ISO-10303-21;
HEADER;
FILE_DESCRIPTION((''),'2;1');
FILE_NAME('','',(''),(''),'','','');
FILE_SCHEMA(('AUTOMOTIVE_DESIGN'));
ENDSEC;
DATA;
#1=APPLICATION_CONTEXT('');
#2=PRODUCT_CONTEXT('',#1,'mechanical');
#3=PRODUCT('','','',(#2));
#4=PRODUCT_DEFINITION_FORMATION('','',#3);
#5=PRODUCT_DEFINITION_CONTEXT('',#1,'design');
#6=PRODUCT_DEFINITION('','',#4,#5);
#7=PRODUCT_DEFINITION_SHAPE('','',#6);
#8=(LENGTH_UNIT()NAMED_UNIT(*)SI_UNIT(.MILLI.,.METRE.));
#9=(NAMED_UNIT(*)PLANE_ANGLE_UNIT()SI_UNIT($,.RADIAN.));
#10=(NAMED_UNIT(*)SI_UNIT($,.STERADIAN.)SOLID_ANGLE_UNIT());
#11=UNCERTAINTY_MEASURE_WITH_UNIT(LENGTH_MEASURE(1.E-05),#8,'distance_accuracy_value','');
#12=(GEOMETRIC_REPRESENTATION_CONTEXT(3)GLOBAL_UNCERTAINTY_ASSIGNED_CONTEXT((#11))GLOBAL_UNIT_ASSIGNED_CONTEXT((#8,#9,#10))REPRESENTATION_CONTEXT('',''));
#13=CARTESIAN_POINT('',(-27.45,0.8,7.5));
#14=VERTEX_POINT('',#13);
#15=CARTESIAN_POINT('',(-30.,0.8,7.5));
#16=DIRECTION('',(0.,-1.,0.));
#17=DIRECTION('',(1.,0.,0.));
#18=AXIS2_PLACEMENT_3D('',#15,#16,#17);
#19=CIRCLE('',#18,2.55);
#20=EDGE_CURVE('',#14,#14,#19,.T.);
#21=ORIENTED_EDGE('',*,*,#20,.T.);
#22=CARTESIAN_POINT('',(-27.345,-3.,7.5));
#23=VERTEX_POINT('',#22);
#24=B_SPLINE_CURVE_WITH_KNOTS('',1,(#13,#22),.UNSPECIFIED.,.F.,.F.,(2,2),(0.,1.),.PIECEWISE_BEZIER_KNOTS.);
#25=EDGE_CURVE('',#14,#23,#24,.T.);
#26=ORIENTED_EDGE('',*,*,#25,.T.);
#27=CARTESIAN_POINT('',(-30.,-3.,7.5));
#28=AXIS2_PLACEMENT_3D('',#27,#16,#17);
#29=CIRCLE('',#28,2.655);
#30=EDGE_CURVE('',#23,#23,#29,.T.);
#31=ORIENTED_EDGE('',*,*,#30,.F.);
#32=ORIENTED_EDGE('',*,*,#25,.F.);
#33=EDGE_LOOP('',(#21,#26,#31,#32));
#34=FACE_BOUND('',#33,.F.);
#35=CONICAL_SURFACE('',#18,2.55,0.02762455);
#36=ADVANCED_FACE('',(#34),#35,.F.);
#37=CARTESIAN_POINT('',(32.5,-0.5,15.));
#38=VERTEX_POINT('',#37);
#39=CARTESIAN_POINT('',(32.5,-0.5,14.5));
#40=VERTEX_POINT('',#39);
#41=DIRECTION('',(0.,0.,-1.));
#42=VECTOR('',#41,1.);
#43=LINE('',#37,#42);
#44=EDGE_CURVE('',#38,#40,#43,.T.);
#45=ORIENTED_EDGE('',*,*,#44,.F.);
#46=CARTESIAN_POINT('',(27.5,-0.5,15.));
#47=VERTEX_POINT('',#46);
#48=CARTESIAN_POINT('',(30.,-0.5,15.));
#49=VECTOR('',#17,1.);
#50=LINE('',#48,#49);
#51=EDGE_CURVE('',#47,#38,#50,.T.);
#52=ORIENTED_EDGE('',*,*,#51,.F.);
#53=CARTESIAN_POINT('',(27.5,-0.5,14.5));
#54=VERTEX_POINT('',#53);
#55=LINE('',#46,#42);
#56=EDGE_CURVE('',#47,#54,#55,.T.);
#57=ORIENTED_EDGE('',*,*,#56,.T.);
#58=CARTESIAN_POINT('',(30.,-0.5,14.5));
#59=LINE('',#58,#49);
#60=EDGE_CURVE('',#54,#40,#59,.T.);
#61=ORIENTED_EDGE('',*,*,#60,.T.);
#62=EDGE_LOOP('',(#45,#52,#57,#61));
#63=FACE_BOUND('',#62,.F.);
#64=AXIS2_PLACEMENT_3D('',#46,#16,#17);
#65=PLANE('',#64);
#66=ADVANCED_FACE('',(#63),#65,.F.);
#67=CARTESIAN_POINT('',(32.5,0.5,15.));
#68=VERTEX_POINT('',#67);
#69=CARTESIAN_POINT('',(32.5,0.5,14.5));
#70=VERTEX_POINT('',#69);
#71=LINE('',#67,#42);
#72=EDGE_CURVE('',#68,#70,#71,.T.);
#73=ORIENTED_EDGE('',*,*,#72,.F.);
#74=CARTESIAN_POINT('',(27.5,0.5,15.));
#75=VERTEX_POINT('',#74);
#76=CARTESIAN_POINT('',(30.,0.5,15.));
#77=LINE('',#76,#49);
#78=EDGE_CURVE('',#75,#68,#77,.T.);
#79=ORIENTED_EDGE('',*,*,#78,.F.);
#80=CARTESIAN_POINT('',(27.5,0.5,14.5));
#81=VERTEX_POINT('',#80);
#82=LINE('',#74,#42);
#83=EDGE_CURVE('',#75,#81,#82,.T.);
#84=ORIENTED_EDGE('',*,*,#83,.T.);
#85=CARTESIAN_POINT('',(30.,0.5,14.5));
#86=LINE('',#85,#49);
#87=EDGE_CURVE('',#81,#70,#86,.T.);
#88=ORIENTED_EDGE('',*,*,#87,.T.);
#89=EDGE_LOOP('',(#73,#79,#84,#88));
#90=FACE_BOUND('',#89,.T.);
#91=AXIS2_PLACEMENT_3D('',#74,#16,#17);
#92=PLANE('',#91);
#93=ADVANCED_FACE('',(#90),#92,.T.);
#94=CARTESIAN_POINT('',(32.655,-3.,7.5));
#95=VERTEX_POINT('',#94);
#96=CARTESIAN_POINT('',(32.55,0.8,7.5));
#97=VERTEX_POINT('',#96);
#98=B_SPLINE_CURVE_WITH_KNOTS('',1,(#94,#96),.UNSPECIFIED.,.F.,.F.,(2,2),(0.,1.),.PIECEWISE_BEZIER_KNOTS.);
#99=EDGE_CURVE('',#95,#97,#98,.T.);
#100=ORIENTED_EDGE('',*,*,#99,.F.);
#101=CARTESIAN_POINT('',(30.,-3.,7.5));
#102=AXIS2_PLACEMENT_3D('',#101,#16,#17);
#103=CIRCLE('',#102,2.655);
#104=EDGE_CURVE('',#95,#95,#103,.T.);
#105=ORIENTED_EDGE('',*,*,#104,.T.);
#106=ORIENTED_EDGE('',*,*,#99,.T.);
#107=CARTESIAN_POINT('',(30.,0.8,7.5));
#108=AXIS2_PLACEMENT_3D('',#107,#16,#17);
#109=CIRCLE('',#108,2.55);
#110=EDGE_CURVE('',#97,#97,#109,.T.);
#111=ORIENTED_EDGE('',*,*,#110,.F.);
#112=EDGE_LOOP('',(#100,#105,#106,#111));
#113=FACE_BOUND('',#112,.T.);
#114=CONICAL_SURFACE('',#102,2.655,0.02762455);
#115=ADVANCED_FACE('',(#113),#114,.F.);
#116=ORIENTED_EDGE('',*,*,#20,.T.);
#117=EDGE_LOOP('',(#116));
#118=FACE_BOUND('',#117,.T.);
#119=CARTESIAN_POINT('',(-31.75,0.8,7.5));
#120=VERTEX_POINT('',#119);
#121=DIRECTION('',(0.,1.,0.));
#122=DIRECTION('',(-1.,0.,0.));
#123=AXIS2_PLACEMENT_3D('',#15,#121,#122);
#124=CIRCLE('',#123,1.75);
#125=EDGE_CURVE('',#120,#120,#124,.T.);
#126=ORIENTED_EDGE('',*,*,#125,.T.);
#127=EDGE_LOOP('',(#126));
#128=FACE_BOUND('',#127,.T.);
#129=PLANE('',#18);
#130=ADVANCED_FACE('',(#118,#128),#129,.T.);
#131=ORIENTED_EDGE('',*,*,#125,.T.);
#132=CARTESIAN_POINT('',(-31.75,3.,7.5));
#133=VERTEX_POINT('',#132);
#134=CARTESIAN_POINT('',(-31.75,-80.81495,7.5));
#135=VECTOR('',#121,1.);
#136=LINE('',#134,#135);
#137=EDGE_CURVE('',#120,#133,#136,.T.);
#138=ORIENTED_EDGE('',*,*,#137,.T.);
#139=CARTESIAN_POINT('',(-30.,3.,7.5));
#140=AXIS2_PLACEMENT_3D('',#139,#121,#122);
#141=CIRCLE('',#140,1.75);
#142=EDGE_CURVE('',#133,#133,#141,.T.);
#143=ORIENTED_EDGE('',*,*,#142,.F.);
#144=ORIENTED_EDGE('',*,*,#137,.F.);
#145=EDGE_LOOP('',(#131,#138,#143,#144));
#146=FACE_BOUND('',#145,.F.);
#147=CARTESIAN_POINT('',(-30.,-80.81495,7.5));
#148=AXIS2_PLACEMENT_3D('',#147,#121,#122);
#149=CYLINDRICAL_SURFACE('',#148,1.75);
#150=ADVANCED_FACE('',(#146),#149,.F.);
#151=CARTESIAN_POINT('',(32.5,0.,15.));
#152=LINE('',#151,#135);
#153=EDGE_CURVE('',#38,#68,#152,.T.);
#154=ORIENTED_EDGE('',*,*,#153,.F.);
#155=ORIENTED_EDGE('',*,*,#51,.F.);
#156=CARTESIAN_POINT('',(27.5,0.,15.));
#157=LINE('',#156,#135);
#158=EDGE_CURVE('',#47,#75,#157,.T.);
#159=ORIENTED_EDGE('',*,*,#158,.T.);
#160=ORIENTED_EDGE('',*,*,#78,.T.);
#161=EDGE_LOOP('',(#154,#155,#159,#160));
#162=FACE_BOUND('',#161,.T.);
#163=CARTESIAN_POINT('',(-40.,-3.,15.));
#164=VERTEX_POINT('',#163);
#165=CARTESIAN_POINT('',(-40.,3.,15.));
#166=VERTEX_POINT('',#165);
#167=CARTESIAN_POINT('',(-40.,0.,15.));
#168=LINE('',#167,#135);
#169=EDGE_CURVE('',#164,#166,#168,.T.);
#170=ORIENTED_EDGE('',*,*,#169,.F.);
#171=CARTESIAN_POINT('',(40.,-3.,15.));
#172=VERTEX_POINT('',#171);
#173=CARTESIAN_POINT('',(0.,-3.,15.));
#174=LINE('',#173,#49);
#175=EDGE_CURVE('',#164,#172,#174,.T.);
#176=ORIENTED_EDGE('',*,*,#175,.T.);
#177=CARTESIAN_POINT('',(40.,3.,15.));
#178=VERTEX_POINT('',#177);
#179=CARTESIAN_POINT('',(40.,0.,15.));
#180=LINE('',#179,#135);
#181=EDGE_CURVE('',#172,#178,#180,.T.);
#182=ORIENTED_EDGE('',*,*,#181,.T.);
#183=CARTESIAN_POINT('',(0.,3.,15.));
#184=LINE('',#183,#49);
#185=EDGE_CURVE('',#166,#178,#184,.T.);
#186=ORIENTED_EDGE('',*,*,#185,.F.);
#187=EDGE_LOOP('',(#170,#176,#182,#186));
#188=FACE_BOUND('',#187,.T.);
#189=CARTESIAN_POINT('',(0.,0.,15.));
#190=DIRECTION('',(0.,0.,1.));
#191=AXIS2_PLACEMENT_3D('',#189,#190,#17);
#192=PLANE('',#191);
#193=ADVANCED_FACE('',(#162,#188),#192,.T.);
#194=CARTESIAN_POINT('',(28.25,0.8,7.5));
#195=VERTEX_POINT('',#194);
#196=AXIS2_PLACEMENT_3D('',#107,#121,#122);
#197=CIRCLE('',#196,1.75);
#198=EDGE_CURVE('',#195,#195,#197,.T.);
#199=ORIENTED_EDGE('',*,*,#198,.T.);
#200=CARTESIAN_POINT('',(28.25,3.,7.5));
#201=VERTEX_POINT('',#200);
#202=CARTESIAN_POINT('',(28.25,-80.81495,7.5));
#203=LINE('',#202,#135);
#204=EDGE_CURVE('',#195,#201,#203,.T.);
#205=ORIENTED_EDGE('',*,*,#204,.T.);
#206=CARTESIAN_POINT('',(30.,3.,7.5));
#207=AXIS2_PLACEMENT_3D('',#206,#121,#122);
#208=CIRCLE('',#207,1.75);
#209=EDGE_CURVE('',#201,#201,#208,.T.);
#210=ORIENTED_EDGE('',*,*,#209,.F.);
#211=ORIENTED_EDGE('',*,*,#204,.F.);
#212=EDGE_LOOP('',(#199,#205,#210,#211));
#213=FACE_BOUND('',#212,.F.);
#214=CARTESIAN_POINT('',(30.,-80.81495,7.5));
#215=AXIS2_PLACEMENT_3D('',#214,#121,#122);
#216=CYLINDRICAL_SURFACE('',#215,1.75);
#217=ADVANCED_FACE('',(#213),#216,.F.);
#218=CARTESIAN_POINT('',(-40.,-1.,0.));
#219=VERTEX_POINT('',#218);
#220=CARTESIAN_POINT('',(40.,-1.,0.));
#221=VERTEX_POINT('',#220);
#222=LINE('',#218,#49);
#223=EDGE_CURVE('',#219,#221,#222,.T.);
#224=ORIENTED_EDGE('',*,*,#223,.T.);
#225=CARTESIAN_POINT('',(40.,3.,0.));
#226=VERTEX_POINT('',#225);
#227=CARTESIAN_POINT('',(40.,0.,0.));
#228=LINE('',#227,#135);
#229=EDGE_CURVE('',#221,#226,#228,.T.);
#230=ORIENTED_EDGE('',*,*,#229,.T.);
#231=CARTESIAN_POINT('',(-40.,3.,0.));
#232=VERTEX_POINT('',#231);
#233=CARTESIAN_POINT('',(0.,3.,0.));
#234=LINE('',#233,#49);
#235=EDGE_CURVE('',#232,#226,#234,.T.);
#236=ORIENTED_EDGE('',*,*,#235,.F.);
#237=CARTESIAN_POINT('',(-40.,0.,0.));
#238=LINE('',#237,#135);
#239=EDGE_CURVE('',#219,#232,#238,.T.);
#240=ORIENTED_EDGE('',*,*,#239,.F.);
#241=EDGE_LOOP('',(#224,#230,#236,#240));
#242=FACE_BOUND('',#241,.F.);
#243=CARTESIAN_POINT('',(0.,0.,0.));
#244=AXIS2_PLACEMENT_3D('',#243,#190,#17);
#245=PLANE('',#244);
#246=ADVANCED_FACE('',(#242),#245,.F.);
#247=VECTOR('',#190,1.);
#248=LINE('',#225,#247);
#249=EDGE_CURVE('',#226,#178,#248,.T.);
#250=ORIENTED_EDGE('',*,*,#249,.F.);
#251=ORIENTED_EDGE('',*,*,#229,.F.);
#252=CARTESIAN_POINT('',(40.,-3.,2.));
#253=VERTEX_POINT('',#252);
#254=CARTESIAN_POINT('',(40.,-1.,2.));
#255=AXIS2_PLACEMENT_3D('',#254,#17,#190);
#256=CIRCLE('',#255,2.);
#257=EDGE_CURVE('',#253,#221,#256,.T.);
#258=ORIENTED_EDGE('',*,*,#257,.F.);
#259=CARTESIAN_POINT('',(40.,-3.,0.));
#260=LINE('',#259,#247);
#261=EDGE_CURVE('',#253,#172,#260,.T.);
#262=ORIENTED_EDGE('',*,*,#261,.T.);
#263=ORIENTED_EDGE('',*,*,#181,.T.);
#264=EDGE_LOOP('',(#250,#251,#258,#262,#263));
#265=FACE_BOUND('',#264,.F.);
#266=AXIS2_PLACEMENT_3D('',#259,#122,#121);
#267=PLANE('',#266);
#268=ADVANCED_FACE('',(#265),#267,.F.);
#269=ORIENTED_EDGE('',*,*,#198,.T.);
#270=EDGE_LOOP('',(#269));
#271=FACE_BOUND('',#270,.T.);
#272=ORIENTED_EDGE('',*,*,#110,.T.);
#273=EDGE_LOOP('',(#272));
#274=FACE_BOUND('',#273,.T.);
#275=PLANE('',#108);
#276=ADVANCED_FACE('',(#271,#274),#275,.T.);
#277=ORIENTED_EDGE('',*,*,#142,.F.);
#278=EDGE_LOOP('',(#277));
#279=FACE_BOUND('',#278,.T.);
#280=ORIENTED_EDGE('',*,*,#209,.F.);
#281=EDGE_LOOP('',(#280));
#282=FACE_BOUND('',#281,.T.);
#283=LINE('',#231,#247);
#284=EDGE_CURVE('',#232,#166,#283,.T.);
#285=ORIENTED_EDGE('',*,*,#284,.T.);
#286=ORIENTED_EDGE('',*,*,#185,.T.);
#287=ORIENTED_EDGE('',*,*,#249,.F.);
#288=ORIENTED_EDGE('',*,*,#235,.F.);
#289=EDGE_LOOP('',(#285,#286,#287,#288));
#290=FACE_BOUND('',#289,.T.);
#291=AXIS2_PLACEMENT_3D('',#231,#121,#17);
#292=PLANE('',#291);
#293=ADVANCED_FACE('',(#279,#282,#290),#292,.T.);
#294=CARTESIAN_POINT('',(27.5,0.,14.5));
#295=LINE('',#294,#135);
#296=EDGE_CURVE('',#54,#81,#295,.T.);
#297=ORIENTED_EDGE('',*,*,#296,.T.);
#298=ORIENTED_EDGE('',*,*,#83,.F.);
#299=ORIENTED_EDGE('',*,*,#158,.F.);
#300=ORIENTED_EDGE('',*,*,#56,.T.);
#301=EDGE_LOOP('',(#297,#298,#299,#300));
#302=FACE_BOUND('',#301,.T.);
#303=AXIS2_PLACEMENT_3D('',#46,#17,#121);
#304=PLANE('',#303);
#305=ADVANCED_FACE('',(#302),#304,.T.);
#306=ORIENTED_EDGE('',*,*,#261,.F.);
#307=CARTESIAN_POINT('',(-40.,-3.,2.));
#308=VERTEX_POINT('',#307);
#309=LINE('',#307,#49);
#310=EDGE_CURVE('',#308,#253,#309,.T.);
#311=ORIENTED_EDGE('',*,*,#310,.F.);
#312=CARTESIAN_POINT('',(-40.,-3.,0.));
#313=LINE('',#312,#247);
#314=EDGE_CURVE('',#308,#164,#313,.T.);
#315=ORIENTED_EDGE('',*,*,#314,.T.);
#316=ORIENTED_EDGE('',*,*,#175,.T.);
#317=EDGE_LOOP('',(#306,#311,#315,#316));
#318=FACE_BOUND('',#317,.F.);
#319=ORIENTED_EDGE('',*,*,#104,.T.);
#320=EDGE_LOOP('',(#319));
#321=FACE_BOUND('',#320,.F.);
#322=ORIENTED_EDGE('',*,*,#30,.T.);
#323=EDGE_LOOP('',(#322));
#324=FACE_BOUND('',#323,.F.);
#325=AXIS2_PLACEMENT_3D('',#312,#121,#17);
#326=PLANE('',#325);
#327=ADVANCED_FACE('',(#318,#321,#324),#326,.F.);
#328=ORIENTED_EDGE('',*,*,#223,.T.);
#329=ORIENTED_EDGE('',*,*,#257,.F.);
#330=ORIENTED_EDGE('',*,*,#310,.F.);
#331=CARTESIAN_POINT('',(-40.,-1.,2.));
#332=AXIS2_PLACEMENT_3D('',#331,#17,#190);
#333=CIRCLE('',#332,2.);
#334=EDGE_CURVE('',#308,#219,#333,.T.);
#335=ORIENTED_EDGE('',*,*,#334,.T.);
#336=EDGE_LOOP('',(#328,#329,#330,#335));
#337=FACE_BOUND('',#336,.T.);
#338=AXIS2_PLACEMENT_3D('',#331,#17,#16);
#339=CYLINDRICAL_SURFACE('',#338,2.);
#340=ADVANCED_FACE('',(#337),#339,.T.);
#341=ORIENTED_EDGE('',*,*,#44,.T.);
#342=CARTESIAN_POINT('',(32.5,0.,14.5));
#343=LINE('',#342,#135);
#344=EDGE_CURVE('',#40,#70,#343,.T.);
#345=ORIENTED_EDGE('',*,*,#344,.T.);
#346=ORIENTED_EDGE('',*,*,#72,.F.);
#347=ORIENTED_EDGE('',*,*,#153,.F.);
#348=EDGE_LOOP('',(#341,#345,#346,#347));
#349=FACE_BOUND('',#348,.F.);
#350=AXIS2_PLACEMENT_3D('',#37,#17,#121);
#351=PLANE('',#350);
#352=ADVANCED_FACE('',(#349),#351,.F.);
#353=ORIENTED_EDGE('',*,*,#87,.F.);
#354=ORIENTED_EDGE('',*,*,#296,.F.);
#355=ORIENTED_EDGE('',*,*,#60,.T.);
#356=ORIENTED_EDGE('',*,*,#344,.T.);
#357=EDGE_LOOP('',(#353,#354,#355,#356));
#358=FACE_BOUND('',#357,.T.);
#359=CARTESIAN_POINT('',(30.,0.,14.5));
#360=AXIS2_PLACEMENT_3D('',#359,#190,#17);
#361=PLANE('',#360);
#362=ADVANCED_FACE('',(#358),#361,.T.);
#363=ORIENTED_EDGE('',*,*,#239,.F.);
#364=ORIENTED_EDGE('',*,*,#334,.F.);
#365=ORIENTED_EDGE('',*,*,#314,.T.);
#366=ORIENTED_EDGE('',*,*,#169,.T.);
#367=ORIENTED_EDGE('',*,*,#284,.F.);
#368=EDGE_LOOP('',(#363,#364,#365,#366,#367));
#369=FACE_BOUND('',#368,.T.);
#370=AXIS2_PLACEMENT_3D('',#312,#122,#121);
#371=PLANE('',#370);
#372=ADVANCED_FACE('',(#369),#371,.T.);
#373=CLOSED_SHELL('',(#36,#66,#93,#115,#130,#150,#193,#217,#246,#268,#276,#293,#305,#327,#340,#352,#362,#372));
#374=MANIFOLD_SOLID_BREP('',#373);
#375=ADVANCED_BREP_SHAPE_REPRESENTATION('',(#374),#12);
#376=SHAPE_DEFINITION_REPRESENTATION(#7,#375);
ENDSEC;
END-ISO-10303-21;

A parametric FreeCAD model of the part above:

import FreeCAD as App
import Part
import Sketcher


def edges_at(feature, points):
    """Names of the edges that pass closest to the given points."""
    edges = feature.Shape.Edges
    near = lambda p: min(range(len(edges)), key=lambda i: edges[i].distToShape(Part.Vertex(*p))[0])
    return sorted({f"Edge{near(p) + 1}" for p in points})


def add_polygon(sketch, points):
    """Adds a closed chain of lines whose ends are joined by coincident constraints."""
    first, n = sketch.GeometryCount, len(points)
    for a, b in zip(points, points[1:] + points[:1]):
        sketch.addGeometry(Part.LineSegment(App.Vector(*a, 0), App.Vector(*b, 0)), False)
    for i in range(n):
        sketch.addConstraint(Sketcher.Constraint("Coincident", first + i, 2, first + (i + 1) % n, 1))

doc = App.newDocument("Part")
body = doc.addObject("PartDesign::Body", "Body")

# Sketch on XY plane
sketch1 = doc.addObject("Sketcher::SketchObject", "Sketch")
body.addObject(sketch1)
sketch1.AttachmentSupport = (doc.XY_Plane, [""])
sketch1.MapMode = "FlatFace"
add_polygon(sketch1, [(-40, 3), (-40, -3), (40, -3), (40, 3)])  # lines 0-3
sketch1.addConstraint([
    Sketcher.Constraint("Vertical", 0),
    Sketcher.Constraint("Horizontal", 1),
    Sketcher.Constraint("Vertical", 2),
    Sketcher.Constraint("Horizontal", 3),
    Sketcher.Constraint("Symmetric", 0, 2, 2, 2, -1, 1),
    Sketcher.Constraint("DistanceX", 1, 1, 1, 2, 80.0),
    Sketcher.Constraint("DistanceY", 0, 2, 0, 1, 6.0),
])
pad1 = doc.addObject("PartDesign::Pad", "Pad")
body.addObject(pad1)
pad1.Profile = sketch1
pad1.Length = 15

# Sketch on XZ plane
sketch2 = doc.addObject("Sketcher::SketchObject", "Sketch001")
body.addObject(sketch2)
sketch2.AttachmentSupport = (doc.XZ_Plane, [""])
sketch2.MapMode = "FlatFace"
sketch2.AttachmentOffset = App.Placement(App.Vector(0, 0, -0.8), App.Rotation())
sketch2.addGeometry(Part.Circle(App.Vector(-30, 7.5, 0), App.Vector(0, 0, 1), 2.5), False)
sketch2.addConstraint([
    Sketcher.Constraint("Diameter", 0, 5.1),
    Sketcher.Constraint("DistanceX", 0, 3, -1, 1, 30.0),
    Sketcher.Constraint("DistanceY", -1, 1, 0, 3, 7.5),
])

# Sketch on XZ plane
sketch3 = doc.addObject("Sketcher::SketchObject", "Sketch002")
body.addObject(sketch3)
sketch3.AttachmentSupport = (doc.XZ_Plane, [""])
sketch3.MapMode = "FlatFace"
sketch3.AttachmentOffset = App.Placement(App.Vector(0, 0, 3), App.Rotation())
sketch3.addGeometry(Part.Circle(App.Vector(-30, 7.5, 0), App.Vector(0, 0, 1), 2.7), False)
sketch3.addConstraint([
    Sketcher.Constraint("Diameter", 0, 5.31),
    Sketcher.Constraint("DistanceX", 0, 3, -1, 1, 30.0),
    Sketcher.Constraint("DistanceY", -1, 1, 0, 3, 7.5),
])

subtractiveloft = doc.addObject("PartDesign::SubtractiveLoft", "SubtractiveLoft")
body.addObject(subtractiveloft)
subtractiveloft.Profile = sketch2
subtractiveloft.Sections = [sketch3]

# Sketch on XZ plane
sketch4 = doc.addObject("Sketcher::SketchObject", "Sketch003")
body.addObject(sketch4)
sketch4.AttachmentSupport = (doc.XZ_Plane, [""])
sketch4.MapMode = "FlatFace"
sketch4.AttachmentOffset = App.Placement(App.Vector(0, 0, 3), App.Rotation())
sketch4.addGeometry(Part.Circle(App.Vector(30, 7.5, 0), App.Vector(0, 0, 1), 2.7), False)
sketch4.addConstraint([
    Sketcher.Constraint("Diameter", 0, 5.31),
    Sketcher.Constraint("DistanceX", -1, 1, 0, 3, 30.0),
    Sketcher.Constraint("DistanceY", -1, 1, 0, 3, 7.5),
])

# Sketch on XZ plane
sketch5 = doc.addObject("Sketcher::SketchObject", "Sketch004")
body.addObject(sketch5)
sketch5.AttachmentSupport = (doc.XZ_Plane, [""])
sketch5.MapMode = "FlatFace"
sketch5.AttachmentOffset = App.Placement(App.Vector(0, 0, -0.8), App.Rotation())
sketch5.addGeometry(Part.Circle(App.Vector(30, 7.5, 0), App.Vector(0, 0, 1), 2.5), False)
sketch5.addConstraint([
    Sketcher.Constraint("Diameter", 0, 5.1),
    Sketcher.Constraint("DistanceX", -1, 1, 0, 3, 30.0),
    Sketcher.Constraint("DistanceY", -1, 1, 0, 3, 7.5),
])

subtractiveloft2 = doc.addObject("PartDesign::SubtractiveLoft", "SubtractiveLoft001")
body.addObject(subtractiveloft2)
subtractiveloft2.Profile = sketch4
subtractiveloft2.Sections = [sketch5]

# Sketch on XZ plane
sketch6 = doc.addObject("Sketcher::SketchObject", "Sketch005")
body.addObject(sketch6)
sketch6.AttachmentSupport = (doc.XZ_Plane, [""])
sketch6.MapMode = "FlatFace"
sketch6.AttachmentOffset = App.Placement(App.Vector(0, 0, -0.8), App.Rotation())
sketch6.addGeometry([
    Part.Circle(App.Vector(30, 7.5, 0), App.Vector(0, 0, 1), 1.8),
    Part.Circle(App.Vector(-30, 7.5, 0), App.Vector(0, 0, 1), 1.8),
], False)
sketch6.addConstraint([
    Sketcher.Constraint("Equal", 0, 1),
    Sketcher.Constraint("Symmetric", 0, 3, 1, 3, -2),
    Sketcher.Constraint("Diameter", 0, 3.5),
    Sketcher.Constraint("DistanceX", -1, 1, 0, 3, 30.0),
    Sketcher.Constraint("DistanceY", -1, 1, 0, 3, 7.5),
])
doc.recompute()
hole = doc.addObject("PartDesign::Hole", "Hole")
body.addObject(hole)
hole.Profile = sketch6
hole.ThreadType = "None"
hole.Diameter = 3.5
hole.DepthType = "ThroughAll"
doc.recompute()

fillet = doc.addObject("PartDesign::Fillet", "Fillet")
body.addObject(fillet)
fillet.Base = (hole, edges_at(hole, [(0, -3, 0)]))
fillet.Radius = 2

# Sketch on XY plane
sketch7 = doc.addObject("Sketcher::SketchObject", "Sketch006")
body.addObject(sketch7)
sketch7.AttachmentSupport = (doc.XY_Plane, [""])
sketch7.MapMode = "FlatFace"
sketch7.AttachmentOffset = App.Placement(App.Vector(0, 0, 15), App.Rotation())
add_polygon(sketch7, [(27.5, 0.5), (27.5, -0.5), (32.5, -0.5), (32.5, 0.5)])  # lines 0-3
sketch7.addConstraint([
    Sketcher.Constraint("Vertical", 0),
    Sketcher.Constraint("Horizontal", 1),
    Sketcher.Constraint("Vertical", 2),
    Sketcher.Constraint("Horizontal", 3),
    Sketcher.Constraint("DistanceX", 1, 1, 1, 2, 5.0),
    Sketcher.Constraint("DistanceY", 0, 2, 0, 1, 1.0),
    Sketcher.Constraint("DistanceX", -1, 1, 0, 2, 27.5),
    Sketcher.Constraint("DistanceY", 0, 2, -1, 1, 0.5),
])
pocket1 = doc.addObject("PartDesign::Pocket", "Pocket")
body.addObject(pocket1)
pocket1.Profile = sketch7
pocket1.Length = 0.5

doc.recompute()
